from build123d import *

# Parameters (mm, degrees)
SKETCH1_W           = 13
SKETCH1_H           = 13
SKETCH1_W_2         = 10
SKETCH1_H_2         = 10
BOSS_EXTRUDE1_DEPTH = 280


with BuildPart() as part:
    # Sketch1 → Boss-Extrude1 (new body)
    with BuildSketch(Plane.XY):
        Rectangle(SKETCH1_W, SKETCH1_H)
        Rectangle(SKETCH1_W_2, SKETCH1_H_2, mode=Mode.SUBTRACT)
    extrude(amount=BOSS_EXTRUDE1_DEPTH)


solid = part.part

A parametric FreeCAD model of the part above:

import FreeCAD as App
import Part
import Sketcher
Q = App.Units.Quantity


def add_polygon(sketch, points):
    """Adds a closed chain of lines whose ends are joined by coincident constraints."""
    first, n = sketch.GeometryCount, len(points)
    for a, b in zip(points, points[1:] + points[:1]):
        sketch.addGeometry(Part.LineSegment(App.Vector(*a, 0), App.Vector(*b, 0)), False)
    for i in range(n):
        sketch.addConstraint(Sketcher.Constraint("Coincident", first + i, 2, first + (i + 1) % n, 1))

doc = App.newDocument("Part")
body = doc.addObject("PartDesign::Body", "Body")

# Sketch on XY plane
sketch1 = body.newObject("Sketcher::SketchObject", "Sketch")
sketch1.AttachmentSupport = (doc.getObject("XY_Plane"), [""])
sketch1.MapMode = "FlatFace"
add_polygon(sketch1, [(-6.5, 6.5), (-6.5, -6.5), (6.5, -6.5), (6.5, 6.5)])  # lines 0-3
add_polygon(sketch1, [(5, -5), (-5, -5), (-5, 5), (5, 5)])  # lines 4-7
sketch1.addConstraint(Sketcher.Constraint("Vertical", 0))
sketch1.addConstraint(Sketcher.Constraint("Horizontal", 1))
sketch1.addConstraint(Sketcher.Constraint("Vertical", 2))
sketch1.addConstraint(Sketcher.Constraint("Horizontal", 3))
sketch1.addConstraint(Sketcher.Constraint("Horizontal", 4))
sketch1.addConstraint(Sketcher.Constraint("Vertical", 5))
sketch1.addConstraint(Sketcher.Constraint("Horizontal", 6))
sketch1.addConstraint(Sketcher.Constraint("Vertical", 7))
sketch1.addConstraint(Sketcher.Constraint("Symmetric", 0, 2, 2, 2, -1, 1))
sketch1.addConstraint(Sketcher.Constraint("Symmetric", 4, 2, 6, 2, -1, 1))
sketch1.addConstraint(Sketcher.Constraint("Equal", 3, 0))
sketch1.addConstraint(Sketcher.Constraint("Equal", 6, 5))
sketch1.addConstraint(Sketcher.Constraint("DistanceX", 1, 1, 1, 2, Q("13 mm")))
sketch1.addConstraint(Sketcher.Constraint("DistanceX", 4, 2, 4, 1, Q("10 mm")))
pad1 = body.newObject("PartDesign::Pad", "Pad")
pad1.Profile = sketch1
pad1.Length = 280

doc.recompute()
